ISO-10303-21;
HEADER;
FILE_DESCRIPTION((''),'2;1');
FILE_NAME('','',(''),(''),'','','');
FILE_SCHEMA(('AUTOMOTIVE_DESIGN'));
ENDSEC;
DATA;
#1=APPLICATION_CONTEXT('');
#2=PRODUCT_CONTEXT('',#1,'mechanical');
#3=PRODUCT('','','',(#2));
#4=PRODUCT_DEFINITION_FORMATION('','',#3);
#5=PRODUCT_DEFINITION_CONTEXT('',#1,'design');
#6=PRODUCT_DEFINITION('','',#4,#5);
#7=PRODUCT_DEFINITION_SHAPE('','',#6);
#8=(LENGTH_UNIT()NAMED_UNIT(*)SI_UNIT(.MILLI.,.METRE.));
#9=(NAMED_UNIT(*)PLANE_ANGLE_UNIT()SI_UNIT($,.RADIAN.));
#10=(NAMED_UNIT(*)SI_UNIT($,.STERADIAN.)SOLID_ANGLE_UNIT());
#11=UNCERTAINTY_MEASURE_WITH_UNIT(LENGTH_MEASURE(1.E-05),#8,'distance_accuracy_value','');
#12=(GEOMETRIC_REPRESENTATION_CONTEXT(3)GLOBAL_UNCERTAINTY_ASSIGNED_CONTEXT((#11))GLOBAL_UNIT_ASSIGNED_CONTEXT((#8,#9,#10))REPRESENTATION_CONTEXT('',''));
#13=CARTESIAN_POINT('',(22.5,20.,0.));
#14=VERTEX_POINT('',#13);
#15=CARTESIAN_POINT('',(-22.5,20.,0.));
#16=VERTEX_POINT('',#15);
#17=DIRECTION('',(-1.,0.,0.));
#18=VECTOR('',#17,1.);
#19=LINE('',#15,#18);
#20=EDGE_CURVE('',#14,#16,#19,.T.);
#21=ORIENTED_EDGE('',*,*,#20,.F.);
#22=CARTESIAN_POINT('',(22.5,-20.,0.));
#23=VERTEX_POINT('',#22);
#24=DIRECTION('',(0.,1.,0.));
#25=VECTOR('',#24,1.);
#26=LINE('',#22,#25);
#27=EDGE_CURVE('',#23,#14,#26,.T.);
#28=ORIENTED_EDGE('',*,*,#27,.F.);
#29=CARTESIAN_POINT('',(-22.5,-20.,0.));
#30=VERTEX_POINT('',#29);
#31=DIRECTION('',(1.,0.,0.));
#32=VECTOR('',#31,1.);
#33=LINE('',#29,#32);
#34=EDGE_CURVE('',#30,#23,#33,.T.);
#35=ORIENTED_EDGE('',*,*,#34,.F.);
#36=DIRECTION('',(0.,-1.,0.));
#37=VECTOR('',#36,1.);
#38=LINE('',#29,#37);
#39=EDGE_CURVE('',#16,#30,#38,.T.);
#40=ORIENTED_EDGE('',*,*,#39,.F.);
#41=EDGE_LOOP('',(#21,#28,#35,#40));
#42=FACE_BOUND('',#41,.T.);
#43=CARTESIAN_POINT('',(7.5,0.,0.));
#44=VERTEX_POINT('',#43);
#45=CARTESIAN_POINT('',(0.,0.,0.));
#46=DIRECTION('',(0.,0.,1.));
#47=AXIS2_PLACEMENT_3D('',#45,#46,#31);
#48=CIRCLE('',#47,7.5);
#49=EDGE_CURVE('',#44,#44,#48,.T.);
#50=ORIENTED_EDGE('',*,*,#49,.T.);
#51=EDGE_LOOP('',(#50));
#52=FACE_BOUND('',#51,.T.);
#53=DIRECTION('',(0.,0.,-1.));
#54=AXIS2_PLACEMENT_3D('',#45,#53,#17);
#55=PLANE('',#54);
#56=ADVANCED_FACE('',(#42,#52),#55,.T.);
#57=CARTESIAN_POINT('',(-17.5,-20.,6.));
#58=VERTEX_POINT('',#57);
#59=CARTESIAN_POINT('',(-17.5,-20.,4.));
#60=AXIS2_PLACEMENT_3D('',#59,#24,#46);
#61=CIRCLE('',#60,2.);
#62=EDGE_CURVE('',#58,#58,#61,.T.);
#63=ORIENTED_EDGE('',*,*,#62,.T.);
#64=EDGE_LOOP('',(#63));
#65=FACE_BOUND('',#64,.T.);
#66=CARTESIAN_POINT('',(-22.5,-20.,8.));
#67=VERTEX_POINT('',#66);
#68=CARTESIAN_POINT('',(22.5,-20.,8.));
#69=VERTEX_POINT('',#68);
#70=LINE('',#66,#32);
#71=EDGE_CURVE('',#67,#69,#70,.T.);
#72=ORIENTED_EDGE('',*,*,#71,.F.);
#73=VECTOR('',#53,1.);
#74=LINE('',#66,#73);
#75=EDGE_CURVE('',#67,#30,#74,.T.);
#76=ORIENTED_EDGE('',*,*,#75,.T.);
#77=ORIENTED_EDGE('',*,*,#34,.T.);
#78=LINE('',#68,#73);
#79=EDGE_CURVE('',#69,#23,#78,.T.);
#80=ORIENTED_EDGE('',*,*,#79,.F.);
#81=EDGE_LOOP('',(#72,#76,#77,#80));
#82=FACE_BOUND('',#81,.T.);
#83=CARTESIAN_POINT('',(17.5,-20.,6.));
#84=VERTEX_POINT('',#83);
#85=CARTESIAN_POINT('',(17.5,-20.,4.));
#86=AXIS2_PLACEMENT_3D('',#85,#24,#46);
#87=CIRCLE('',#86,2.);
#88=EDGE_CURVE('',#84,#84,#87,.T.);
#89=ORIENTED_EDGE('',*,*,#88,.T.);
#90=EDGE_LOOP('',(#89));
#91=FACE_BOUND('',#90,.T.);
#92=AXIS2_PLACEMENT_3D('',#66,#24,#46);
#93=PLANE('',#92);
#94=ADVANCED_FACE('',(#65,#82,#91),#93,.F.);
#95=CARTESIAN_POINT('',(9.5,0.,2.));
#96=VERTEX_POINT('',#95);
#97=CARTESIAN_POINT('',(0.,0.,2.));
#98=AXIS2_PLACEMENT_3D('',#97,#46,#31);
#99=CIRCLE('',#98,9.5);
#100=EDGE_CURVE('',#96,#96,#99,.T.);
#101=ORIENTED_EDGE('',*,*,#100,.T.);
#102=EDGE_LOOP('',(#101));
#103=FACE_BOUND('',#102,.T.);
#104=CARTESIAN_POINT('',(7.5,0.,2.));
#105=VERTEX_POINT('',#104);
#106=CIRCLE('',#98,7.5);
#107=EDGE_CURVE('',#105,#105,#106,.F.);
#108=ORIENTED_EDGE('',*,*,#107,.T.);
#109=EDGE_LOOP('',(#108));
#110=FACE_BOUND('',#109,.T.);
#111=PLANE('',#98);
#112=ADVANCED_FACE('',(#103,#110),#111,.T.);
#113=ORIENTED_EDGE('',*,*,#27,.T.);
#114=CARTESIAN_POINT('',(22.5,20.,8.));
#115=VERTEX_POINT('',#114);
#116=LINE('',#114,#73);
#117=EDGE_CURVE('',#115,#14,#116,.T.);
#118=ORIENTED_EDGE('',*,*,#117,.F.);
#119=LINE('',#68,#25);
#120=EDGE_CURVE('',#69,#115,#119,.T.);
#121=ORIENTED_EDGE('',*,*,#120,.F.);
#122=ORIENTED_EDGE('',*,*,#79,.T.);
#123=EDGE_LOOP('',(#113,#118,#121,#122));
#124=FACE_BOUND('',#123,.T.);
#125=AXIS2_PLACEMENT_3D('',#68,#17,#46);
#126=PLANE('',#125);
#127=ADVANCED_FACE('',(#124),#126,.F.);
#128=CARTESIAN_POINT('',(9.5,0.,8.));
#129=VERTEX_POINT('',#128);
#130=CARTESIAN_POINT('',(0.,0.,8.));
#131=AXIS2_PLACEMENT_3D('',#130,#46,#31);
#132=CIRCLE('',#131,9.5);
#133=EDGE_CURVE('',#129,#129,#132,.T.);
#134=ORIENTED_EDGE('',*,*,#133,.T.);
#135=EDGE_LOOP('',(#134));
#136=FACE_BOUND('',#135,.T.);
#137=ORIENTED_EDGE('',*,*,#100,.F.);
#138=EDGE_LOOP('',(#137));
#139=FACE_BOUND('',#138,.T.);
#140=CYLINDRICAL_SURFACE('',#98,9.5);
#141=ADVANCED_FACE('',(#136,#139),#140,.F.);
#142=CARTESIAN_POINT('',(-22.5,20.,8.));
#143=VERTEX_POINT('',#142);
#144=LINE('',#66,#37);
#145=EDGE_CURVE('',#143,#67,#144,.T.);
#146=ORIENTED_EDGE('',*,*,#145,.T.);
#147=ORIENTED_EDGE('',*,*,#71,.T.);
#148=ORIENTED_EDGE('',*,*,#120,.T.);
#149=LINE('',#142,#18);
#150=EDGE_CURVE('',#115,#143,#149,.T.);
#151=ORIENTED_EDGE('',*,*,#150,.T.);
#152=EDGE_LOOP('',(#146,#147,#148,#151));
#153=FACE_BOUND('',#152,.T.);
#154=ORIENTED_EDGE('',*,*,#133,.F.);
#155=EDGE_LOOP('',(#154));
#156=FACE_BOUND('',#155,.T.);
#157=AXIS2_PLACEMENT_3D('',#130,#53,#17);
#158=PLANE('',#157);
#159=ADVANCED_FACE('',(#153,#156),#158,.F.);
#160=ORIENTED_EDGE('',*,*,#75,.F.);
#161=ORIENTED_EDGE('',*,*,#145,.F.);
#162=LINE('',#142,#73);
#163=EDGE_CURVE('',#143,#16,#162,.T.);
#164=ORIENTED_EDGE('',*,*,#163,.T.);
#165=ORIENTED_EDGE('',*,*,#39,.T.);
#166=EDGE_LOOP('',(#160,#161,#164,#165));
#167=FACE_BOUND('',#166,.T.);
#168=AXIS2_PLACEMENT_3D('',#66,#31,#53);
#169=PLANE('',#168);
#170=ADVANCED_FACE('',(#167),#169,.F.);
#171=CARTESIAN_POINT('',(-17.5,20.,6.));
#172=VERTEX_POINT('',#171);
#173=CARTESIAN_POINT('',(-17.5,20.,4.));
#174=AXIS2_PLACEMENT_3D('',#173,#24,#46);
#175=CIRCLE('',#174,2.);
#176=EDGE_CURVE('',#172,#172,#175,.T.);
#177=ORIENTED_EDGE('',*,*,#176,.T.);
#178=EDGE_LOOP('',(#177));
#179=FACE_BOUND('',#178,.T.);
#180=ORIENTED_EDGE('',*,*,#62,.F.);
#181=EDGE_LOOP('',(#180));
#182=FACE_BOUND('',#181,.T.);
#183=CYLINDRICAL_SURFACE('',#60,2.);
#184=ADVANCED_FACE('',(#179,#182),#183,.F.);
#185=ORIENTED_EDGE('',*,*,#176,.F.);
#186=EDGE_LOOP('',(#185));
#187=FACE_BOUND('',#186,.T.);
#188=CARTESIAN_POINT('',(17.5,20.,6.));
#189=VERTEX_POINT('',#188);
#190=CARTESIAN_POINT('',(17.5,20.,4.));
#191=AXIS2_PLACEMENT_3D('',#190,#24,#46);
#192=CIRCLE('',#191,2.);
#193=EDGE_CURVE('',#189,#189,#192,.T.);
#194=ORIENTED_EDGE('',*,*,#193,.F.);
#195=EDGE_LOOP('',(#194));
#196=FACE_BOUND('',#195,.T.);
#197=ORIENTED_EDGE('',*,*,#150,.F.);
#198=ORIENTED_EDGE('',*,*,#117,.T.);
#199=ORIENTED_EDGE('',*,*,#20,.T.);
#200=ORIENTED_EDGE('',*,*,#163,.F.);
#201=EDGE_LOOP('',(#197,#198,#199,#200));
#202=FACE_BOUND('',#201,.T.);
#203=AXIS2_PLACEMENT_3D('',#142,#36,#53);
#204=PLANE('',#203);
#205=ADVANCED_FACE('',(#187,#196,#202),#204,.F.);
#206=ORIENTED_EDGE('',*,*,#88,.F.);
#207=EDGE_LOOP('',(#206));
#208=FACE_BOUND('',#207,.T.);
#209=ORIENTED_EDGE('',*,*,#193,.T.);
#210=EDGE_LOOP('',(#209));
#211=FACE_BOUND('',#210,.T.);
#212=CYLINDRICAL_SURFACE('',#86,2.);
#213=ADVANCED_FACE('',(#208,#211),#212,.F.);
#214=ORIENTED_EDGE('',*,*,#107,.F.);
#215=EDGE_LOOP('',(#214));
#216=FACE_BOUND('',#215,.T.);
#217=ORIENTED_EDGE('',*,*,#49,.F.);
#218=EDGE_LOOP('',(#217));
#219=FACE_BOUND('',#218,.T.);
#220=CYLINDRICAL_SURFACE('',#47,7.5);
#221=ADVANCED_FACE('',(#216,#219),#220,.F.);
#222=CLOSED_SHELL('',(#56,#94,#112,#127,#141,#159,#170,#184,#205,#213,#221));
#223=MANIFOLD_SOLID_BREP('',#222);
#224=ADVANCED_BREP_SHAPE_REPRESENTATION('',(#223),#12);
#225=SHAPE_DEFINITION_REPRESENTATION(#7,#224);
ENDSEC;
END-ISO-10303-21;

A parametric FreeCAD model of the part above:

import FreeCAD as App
import Part
import Sketcher


def add_polygon(sketch, points):
    """Adds a closed chain of lines whose ends are joined by coincident constraints."""
    first, n = sketch.GeometryCount, len(points)
    for a, b in zip(points, points[1:] + points[:1]):
        sketch.addGeometry(Part.LineSegment(App.Vector(*a, 0), App.Vector(*b, 0)), False)
    for i in range(n):
        sketch.addConstraint(Sketcher.Constraint("Coincident", first + i, 2, first + (i + 1) % n, 1))

doc = App.newDocument("Part")
body = doc.addObject("PartDesign::Body", "Body")

# Sketch on XY plane
sketch1 = doc.addObject("Sketcher::SketchObject", "Sketch")
body.addObject(sketch1)
sketch1.AttachmentSupport = (doc.XY_Plane, [""])
sketch1.MapMode = "FlatFace"
add_polygon(sketch1, [(-22, 20), (-22, -20), (22, -20), (22, 20)])  # lines 0-3
sketch1.addConstraint(Sketcher.Constraint("Vertical", 0))
sketch1.addConstraint(Sketcher.Constraint("Horizontal", 1))
sketch1.addConstraint(Sketcher.Constraint("Vertical", 2))
sketch1.addConstraint(Sketcher.Constraint("Horizontal", 3))
sketch1.addConstraint(Sketcher.Constraint("Symmetric", 0, 2, 2, 2, -1, 1))
sketch1.addConstraint(Sketcher.Constraint("DistanceX", 1, 1, 1, 2, 45.0))
sketch1.addConstraint(Sketcher.Constraint("DistanceY", 0, 2, 0, 1, 40.0))
pad1 = doc.addObject("PartDesign::Pad", "Pad")
body.addObject(pad1)
pad1.Profile = sketch1
pad1.Length = 8

# Sketch on XY plane
sketch2 = doc.addObject("Sketcher::SketchObject", "Sketch001")
body.addObject(sketch2)
sketch2.AttachmentSupport = (doc.XY_Plane, [""])
sketch2.MapMode = "FlatFace"
sketch2.AttachmentOffset = App.Placement(App.Vector(0, 0, 8), App.Rotation())
sketch2.addGeometry(Part.Circle(App.Vector(0, 0, 0), App.Vector(0, 0, 1), 8), False)
sketch2.addConstraint(Sketcher.Constraint("Coincident", 0, 3, -1, 1))
sketch2.addConstraint(Sketcher.Constraint("Diameter", 0, 15.0))
pocket1 = doc.addObject("PartDesign::Pocket", "Pocket")
body.addObject(pocket1)
pocket1.Profile = sketch2
pocket1.Type = "ThroughAll"

# Sketch on XY plane
sketch3 = doc.addObject("Sketcher::SketchObject", "Sketch002")
body.addObject(sketch3)
sketch3.AttachmentSupport = (doc.XY_Plane, [""])
sketch3.MapMode = "FlatFace"
sketch3.AttachmentOffset = App.Placement(App.Vector(0, 0, 8), App.Rotation())
sketch3.addGeometry(Part.Circle(App.Vector(0, 0, 0), App.Vector(0, 0, 1), 10), False)
sketch3.addConstraint(Sketcher.Constraint("Coincident", 0, 3, -1, 1))
sketch3.addConstraint(Sketcher.Constraint("Diameter", 0, 19.0))
pocket2 = doc.addObject("PartDesign::Pocket", "Pocket001")
body.addObject(pocket2)
pocket2.Profile = sketch3
pocket2.Length = 6

# Sketch on XZ plane
sketch4 = doc.addObject("Sketcher::SketchObject", "Sketch003")
body.addObject(sketch4)
sketch4.AttachmentSupport = (doc.XZ_Plane, [""])
sketch4.MapMode = "FlatFace"
sketch4.AttachmentOffset = App.Placement(App.Vector(0, 0, -20), App.Rotation())
sketch4.addGeometry(Part.Circle(App.Vector(-17.5, 4, 0), App.Vector(0, 0, 1), 2), False)
sketch4.addGeometry(Part.Circle(App.Vector(17.5, 4, 0), App.Vector(0, 0, 1), 2), False)
sketch4.addConstraint(Sketcher.Constraint("Equal", 0, 1))
sketch4.addConstraint(Sketcher.Constraint("Symmetric", 0, 3, 1, 3, -2))
sketch4.addConstraint(Sketcher.Constraint("Diameter", 0, 4.0))
sketch4.addConstraint(Sketcher.Constraint("DistanceY", -1, 1, 0, 3, 4.0))
sketch4.addConstraint(Sketcher.Constraint("DistanceX", 0, 3, 1, 3, 35.0))
pocket3 = doc.addObject("PartDesign::Pocket", "Pocket002")
body.addObject(pocket3)
pocket3.Profile = sketch4
pocket3.Type = "ThroughAll"
pocket3.Reversed = True

doc.recompute()
